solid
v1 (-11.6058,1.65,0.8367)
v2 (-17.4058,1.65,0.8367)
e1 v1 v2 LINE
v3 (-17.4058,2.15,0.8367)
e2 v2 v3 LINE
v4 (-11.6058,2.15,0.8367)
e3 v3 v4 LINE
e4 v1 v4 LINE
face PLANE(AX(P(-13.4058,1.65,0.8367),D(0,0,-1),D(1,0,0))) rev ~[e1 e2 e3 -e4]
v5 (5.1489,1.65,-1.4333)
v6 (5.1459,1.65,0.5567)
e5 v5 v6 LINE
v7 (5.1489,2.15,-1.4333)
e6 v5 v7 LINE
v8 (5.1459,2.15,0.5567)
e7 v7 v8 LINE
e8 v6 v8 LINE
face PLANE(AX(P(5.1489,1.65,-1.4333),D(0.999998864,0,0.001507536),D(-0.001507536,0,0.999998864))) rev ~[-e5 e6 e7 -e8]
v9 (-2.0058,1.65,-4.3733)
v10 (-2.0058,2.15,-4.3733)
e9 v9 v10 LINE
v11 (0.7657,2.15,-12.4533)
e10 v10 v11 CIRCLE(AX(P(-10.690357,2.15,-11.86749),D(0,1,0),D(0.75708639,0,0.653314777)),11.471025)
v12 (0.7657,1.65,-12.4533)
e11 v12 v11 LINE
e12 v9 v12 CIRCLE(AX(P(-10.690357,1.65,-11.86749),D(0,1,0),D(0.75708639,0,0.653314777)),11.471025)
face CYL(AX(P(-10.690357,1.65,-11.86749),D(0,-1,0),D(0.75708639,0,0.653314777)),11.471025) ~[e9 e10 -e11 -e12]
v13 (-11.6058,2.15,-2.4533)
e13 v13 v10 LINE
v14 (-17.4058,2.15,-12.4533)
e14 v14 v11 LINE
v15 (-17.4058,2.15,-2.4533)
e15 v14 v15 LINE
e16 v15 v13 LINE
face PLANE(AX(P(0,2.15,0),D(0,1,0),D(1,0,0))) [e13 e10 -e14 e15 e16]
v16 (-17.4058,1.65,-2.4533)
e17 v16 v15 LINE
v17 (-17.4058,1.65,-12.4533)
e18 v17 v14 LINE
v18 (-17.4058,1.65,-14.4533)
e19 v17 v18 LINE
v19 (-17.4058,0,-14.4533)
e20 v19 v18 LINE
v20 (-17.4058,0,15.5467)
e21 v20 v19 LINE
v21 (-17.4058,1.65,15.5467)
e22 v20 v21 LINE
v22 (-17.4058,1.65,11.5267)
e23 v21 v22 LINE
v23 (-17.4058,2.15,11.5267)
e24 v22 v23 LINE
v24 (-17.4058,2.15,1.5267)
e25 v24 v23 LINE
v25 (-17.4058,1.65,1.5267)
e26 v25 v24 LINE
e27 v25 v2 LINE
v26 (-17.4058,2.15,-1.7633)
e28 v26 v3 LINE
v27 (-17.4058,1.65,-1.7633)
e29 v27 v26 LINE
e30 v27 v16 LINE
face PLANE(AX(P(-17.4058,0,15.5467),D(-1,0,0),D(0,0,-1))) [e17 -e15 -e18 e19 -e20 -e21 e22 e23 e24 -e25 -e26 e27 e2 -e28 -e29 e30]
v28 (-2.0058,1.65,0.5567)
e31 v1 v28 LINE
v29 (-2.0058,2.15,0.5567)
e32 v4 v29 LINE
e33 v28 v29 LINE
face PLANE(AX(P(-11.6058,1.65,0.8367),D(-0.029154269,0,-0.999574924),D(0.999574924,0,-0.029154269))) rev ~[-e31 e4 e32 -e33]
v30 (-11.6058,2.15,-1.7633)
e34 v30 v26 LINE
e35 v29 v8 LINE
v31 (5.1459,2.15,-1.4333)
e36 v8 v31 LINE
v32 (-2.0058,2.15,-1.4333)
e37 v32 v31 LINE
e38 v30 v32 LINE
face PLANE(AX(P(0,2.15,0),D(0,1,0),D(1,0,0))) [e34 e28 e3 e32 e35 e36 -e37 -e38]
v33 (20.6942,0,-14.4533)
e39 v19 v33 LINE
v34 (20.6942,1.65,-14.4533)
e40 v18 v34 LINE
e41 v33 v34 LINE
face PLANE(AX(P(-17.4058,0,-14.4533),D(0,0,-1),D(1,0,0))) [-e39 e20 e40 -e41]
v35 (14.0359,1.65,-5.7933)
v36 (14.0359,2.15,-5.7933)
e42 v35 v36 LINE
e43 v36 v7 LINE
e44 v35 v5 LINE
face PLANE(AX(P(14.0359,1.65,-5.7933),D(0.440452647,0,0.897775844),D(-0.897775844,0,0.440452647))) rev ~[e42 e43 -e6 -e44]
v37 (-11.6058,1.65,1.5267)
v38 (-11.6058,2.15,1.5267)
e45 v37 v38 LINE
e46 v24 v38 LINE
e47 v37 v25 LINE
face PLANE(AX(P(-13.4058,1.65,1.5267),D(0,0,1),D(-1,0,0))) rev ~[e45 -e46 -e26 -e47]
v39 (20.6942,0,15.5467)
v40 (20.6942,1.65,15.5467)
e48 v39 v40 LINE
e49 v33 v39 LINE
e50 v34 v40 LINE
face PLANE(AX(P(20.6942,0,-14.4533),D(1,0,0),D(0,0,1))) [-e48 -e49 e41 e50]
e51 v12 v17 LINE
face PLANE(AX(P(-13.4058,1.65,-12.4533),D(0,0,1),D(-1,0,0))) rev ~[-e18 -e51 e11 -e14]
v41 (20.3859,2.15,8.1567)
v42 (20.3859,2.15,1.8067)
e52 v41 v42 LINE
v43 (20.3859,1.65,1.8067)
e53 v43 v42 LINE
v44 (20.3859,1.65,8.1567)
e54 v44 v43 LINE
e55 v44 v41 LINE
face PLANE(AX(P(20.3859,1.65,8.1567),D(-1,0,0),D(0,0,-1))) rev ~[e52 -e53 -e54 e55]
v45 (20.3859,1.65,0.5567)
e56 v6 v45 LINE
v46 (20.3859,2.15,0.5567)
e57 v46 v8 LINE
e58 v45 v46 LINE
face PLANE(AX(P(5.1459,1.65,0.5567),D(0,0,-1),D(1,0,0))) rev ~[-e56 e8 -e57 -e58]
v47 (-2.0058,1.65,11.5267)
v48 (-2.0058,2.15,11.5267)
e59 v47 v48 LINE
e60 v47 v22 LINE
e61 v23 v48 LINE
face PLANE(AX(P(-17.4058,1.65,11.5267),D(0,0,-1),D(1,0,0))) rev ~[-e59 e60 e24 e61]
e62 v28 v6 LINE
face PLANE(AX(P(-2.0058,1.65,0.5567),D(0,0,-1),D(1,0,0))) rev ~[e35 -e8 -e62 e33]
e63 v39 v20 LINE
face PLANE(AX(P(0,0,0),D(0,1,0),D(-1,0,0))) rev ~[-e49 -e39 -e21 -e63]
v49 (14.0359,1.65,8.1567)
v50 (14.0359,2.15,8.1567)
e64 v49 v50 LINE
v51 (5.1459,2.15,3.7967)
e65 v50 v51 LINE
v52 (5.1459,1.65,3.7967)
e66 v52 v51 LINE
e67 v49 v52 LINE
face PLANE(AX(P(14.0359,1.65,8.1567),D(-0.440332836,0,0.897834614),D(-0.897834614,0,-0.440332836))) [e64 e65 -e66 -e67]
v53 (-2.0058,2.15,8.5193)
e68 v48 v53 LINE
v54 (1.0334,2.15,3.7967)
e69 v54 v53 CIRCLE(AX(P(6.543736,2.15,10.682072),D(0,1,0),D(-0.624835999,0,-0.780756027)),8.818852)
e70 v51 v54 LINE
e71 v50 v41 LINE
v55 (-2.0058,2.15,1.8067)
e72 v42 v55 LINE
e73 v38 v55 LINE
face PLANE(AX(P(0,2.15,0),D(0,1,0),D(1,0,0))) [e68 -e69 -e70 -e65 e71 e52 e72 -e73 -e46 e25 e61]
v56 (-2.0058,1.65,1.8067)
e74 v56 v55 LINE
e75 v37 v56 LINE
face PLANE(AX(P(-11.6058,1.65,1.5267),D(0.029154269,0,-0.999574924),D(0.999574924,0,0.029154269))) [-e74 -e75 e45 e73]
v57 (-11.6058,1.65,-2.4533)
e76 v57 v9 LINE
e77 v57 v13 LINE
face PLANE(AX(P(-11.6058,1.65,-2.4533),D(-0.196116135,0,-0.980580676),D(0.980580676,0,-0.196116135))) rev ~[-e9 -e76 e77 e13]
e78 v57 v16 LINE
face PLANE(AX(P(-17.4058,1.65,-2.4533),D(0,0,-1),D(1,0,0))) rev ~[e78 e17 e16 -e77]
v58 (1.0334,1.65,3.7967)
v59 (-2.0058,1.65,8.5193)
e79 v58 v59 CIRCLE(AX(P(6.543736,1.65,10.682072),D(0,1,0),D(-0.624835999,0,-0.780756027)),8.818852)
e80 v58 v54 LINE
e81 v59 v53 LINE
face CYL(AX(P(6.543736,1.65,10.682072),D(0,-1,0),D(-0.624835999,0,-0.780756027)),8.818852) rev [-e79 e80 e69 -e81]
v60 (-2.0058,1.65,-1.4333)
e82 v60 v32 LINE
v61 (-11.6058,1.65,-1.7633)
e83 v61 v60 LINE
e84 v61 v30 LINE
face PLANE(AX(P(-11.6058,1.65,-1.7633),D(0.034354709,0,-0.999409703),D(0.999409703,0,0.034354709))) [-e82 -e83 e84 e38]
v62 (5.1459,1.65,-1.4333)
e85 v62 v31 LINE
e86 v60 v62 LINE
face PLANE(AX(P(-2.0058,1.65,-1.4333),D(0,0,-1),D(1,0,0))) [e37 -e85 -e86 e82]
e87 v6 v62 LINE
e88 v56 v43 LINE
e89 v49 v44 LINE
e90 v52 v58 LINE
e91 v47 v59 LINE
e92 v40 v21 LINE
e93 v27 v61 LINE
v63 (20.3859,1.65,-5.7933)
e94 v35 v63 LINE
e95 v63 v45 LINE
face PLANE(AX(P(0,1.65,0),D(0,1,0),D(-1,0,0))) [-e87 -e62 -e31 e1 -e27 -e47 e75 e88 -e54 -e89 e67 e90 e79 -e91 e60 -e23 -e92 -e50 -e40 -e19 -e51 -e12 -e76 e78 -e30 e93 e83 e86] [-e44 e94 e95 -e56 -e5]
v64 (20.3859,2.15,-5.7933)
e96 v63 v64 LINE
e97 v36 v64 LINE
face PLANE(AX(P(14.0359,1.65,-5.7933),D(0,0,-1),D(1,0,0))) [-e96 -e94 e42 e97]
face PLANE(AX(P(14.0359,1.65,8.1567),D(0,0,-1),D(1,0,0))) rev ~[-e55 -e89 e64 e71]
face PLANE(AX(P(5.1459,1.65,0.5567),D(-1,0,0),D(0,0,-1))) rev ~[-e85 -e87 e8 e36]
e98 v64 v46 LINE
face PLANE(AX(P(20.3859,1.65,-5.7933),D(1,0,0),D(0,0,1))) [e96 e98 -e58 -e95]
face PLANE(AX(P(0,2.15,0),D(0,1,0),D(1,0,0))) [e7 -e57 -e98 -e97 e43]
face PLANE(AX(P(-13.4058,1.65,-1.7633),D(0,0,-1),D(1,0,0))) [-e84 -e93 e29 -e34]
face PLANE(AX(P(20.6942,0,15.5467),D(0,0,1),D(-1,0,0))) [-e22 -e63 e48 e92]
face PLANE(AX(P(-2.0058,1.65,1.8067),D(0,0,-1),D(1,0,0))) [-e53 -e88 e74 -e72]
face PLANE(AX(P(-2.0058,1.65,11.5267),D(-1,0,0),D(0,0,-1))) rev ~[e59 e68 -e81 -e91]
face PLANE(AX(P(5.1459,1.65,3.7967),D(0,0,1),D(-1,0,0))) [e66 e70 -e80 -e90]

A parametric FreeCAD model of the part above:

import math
import FreeCAD as App
import Part
import Sketcher


def add_polygon(sketch, points):
    """Adds a closed chain of lines whose ends are joined by coincident constraints."""
    first, n = sketch.GeometryCount, len(points)
    for a, b in zip(points, points[1:] + points[:1]):
        sketch.addGeometry(Part.LineSegment(App.Vector(*a, 0), App.Vector(*b, 0)), False)
    for i in range(n):
        sketch.addConstraint(Sketcher.Constraint("Coincident", first + i, 2, first + (i + 1) % n, 1))

doc = App.newDocument("Part")
body = doc.addObject("PartDesign::Body", "Body")

# Sketch on XZ plane
sketch1 = body.newObject("Sketcher::SketchObject", "Sketch")
sketch1.AttachmentSupport = (doc.getObject("XZ_Plane"), [""])
sketch1.MapMode = "FlatFace"
add_polygon(sketch1, [(-17, 16), (21, 16), (21, -14), (-17, -14)])  # lines 0-3
sketch1.addConstraint(Sketcher.Constraint("Horizontal", 0))
sketch1.addConstraint(Sketcher.Constraint("Vertical", 1))
sketch1.addConstraint(Sketcher.Constraint("Horizontal", 2))
sketch1.addConstraint(Sketcher.Constraint("Vertical", 3))
sketch1.addConstraint(Sketcher.Constraint("DistanceY", 1, 2, 1, 1, 30.0))
sketch1.addConstraint(Sketcher.Constraint("DistanceX", 0, 1, 0, 2, 38.1))
sketch1.addConstraint(Sketcher.Constraint("DistanceX", -1, 1, 0, 2, 20.6942))
sketch1.addConstraint(Sketcher.Constraint("DistanceY", -1, 1, 0, 2, 15.5467))
pad1 = body.newObject("PartDesign::Pad", "Pad")
pad1.Profile = sketch1
pad1.Length = 1.65
pad1.Reversed = True

# Sketch on XZ plane
sketch2 = body.newObject("Sketcher::SketchObject", "Sketch001")
sketch2.AttachmentSupport = (doc.getObject("XZ_Plane"), [""])
sketch2.MapMode = "FlatFace"
sketch2.AttachmentOffset = App.Placement(App.Vector(0, 0, -1.65), App.Rotation())
sketch2.addGeometry(Part.LineSegment(App.Vector(-17.4, -12.5, 0), App.Vector(-17.4, -2.5, 0)), False)  # 0
sketch2.addGeometry(Part.LineSegment(App.Vector(-17.4, -2.5, 0), App.Vector(-11.6, -2.5, 0)), False)  # 1
sketch2.addGeometry(Part.LineSegment(App.Vector(-11.6, -2.5, 0), App.Vector(-2, -4.4, 0)), False)  # 2
sketch2.addGeometry(Part.ArcOfCircle(Part.Circle(App.Vector(-10.7, -11.9, 0), App.Vector(0, 0, 1), 11.5), math.radians(-3), math.radians(41)), False)  # 3
sketch2.addGeometry(Part.LineSegment(App.Vector(0.8, -12.5, 0), App.Vector(-17.4, -12.5, 0)), False)  # 4
add_polygon(sketch2, [(5.1, -1.4), (5.1, 0.6), (20.4, 0.6), (20.4, -5.8), (14, -5.8)])  # lines 5-9
sketch2.addGeometry(Part.LineSegment(App.Vector(-17.4, 1.5, 0), App.Vector(-17.4, 11.5, 0)), False)  # 10
sketch2.addGeometry(Part.LineSegment(App.Vector(-17.4, 11.5, 0), App.Vector(-2, 11.5, 0)), False)  # 11
sketch2.addGeometry(Part.LineSegment(App.Vector(-2, 11.5, 0), App.Vector(-2, 8.5, 0)), False)  # 12
sketch2.addGeometry(Part.ArcOfCircle(Part.Circle(App.Vector(6.5, 10.7, 0), App.Vector(0, 0, 1), 8.8), math.radians(-166), math.radians(-129)), False)  # 13
sketch2.addGeometry(Part.LineSegment(App.Vector(1, 3.8, 0), App.Vector(5.1, 3.8, 0)), False)  # 14
sketch2.addGeometry(Part.LineSegment(App.Vector(5.1, 3.8, 0), App.Vector(14, 8.2, 0)), False)  # 15
sketch2.addGeometry(Part.LineSegment(App.Vector(14, 8.2, 0), App.Vector(20.4, 8.2, 0)), False)  # 16
sketch2.addGeometry(Part.LineSegment(App.Vector(20.4, 8.2, 0), App.Vector(20.4, 1.8, 0)), False)  # 17
sketch2.addGeometry(Part.LineSegment(App.Vector(20.4, 1.8, 0), App.Vector(-2, 1.8, 0)), False)  # 18
sketch2.addGeometry(Part.LineSegment(App.Vector(-2, 1.8, 0), App.Vector(-11.6, 1.5, 0)), False)  # 19
sketch2.addGeometry(Part.LineSegment(App.Vector(-11.6, 1.5, 0), App.Vector(-17.4, 1.5, 0)), False)  # 20
add_polygon(sketch2, [(-17.4, -1.8), (-17.4, 0.8), (-11.6, 0.8), (-2, 0.6), (5.1, 0.6), (5.1, -1.4), (-2, -1.4), (-11.6, -1.8)])  # lines 21-28
sketch2.addConstraint(Sketcher.Constraint("Coincident", 0, 2, 1, 1))
sketch2.addConstraint(Sketcher.Constraint("Coincident", 1, 2, 2, 1))
sketch2.addConstraint(Sketcher.Constraint("Coincident", 2, 2, 3, 2))
sketch2.addConstraint(Sketcher.Constraint("Coincident", 3, 1, 4, 1))
sketch2.addConstraint(Sketcher.Constraint("Coincident", 4, 2, 0, 1))
sketch2.addConstraint(Sketcher.Constraint("Coincident", 10, 2, 11, 1))
sketch2.addConstraint(Sketcher.Constraint("Coincident", 11, 2, 12, 1))
sketch2.addConstraint(Sketcher.Constraint("Coincident", 12, 2, 13, 1))
sketch2.addConstraint(Sketcher.Constraint("Coincident", 13, 2, 14, 1))
sketch2.addConstraint(Sketcher.Constraint("Coincident", 14, 2, 15, 1))
sketch2.addConstraint(Sketcher.Constraint("Coincident", 15, 2, 16, 1))
sketch2.addConstraint(Sketcher.Constraint("Coincident", 16, 2, 17, 1))
sketch2.addConstraint(Sketcher.Constraint("Coincident", 17, 2, 18, 1))
sketch2.addConstraint(Sketcher.Constraint("Coincident", 18, 2, 19, 1))
sketch2.addConstraint(Sketcher.Constraint("Coincident", 19, 2, 20, 1))
sketch2.addConstraint(Sketcher.Constraint("Coincident", 20, 2, 10, 1))
sketch2.addConstraint(Sketcher.Constraint("Vertical", 0))
sketch2.addConstraint(Sketcher.Constraint("Horizontal", 1))
sketch2.addConstraint(Sketcher.Constraint("Horizontal", 4))
sketch2.addConstraint(Sketcher.Constraint("Horizontal", 6))
sketch2.addConstraint(Sketcher.Constraint("Vertical", 7))
sketch2.addConstraint(Sketcher.Constraint("Horizontal", 8))
sketch2.addConstraint(Sketcher.Constraint("Vertical", 10))
sketch2.addConstraint(Sketcher.Constraint("Horizontal", 11))
sketch2.addConstraint(Sketcher.Constraint("Vertical", 12))
sketch2.addConstraint(Sketcher.Constraint("Horizontal", 14))
sketch2.addConstraint(Sketcher.Constraint("Horizontal", 16))
sketch2.addConstraint(Sketcher.Constraint("Vertical", 17))
sketch2.addConstraint(Sketcher.Constraint("Horizontal", 18))
sketch2.addConstraint(Sketcher.Constraint("Horizontal", 20))
sketch2.addConstraint(Sketcher.Constraint("Vertical", 21))
sketch2.addConstraint(Sketcher.Constraint("Horizontal", 22))
sketch2.addConstraint(Sketcher.Constraint("Horizontal", 24))
sketch2.addConstraint(Sketcher.Constraint("Vertical", 25))
sketch2.addConstraint(Sketcher.Constraint("Horizontal", 26))
sketch2.addConstraint(Sketcher.Constraint("Horizontal", 28))
sketch2.addConstraint(Sketcher.Constraint("Coincident", 24, 2, 5, 2))
sketch2.addConstraint(Sketcher.Constraint("Horizontal", 9, 2, 25, 2))
sketch2.addConstraint(Sketcher.Constraint("Vertical", 4, 2, 10, 2))
sketch2.addConstraint(Sketcher.Constraint("Vertical", 2, 2, 11, 2))
sketch2.addConstraint(Sketcher.Constraint("Vertical", 5, 2, 14, 2))
sketch2.addConstraint(Sketcher.Constraint("Vertical", 8, 2, 15, 2))
sketch2.addConstraint(Sketcher.Constraint("Vertical", 7, 2, 16, 2))
sketch2.addConstraint(Sketcher.Constraint("Vertical", 12, 2, 18, 2))
sketch2.addConstraint(Sketcher.Constraint("Vertical", 1, 2, 19, 2))
sketch2.addConstraint(Sketcher.Constraint("Vertical", 20, 2, 21, 2))
sketch2.addConstraint(Sketcher.Constraint("Vertical", 19, 2, 22, 2))
sketch2.addConstraint(Sketcher.Constraint("Vertical", 18, 2, 23, 2))
sketch2.addConstraint(Sketcher.Constraint("Vertical", 23, 2, 26, 2))
sketch2.addConstraint(Sketcher.Constraint("Vertical", 22, 2, 27, 2))
sketch2.addConstraint(Sketcher.Constraint("Equal", 16, 7))
sketch2.addConstraint(Sketcher.Constraint("Equal", 0, 10))
sketch2.addConstraint(Sketcher.Constraint("Equal", 7, 17))
sketch2.addConstraint(Sketcher.Constraint("Equal", 19, 23))
sketch2.addConstraint(Sketcher.Constraint("DistanceY", 0, 1, 0, 2, 10.0))
sketch2.addConstraint(Sketcher.Constraint("DistanceY", 21, 1, 21, 2, 2.6))
sketch2.addConstraint(Sketcher.Constraint("DistanceX", 8, 2, 8, 1, 6.35))
sketch2.addConstraint(Sketcher.Constraint("DistanceY", 25, 2, 25, 1, 1.99))
sketch2.addConstraint(Sketcher.Constraint("DistanceX", 1, 2, 2, 2, 9.6))
sketch2.addConstraint(Sketcher.Constraint("DistanceX", 5, 2, 8, 2, 8.89))
sketch2.addConstraint(Sketcher.Constraint("DistanceY", 2, 2, 9, 2, 2.94))
sketch2.addConstraint(Sketcher.Constraint("DistanceY", 6, 2, 17, 2, 1.25))
sketch2.addConstraint(Sketcher.Constraint("DistanceY", 18, 2, 13, 2, 1.99))
sketch2.addConstraint(Sketcher.Constraint("DistanceY", 19, 2, 18, 2, 0.28))
sketch2.addConstraint(Sketcher.Constraint("DistanceY", 1, 2, 27, 2, 0.69))
sketch2.addConstraint(Sketcher.Constraint("DistanceX", 1, 1, 1, 2, 5.8))
sketch2.addConstraint(Sketcher.Constraint("Radius", 3, 11.4708))
sketch2.addConstraint(Sketcher.Constraint("Radius", 13, 8.8193))
sketch2.addConstraint(Sketcher.Constraint("DistanceX", 0, 2, 13, 3, 23.95))
sketch2.addConstraint(Sketcher.Constraint("Distance", 9, 9.899))
sketch2.addConstraint(Sketcher.Constraint("DistanceX", 4, 2, 4, 1, 18.1715))
sketch2.addConstraint(Sketcher.Constraint("DistanceX", 14, 1, 14, 2, 4.1125))
sketch2.addConstraint(Sketcher.Constraint("DistanceX", 18, 2, 18, 1, 22.3917))
sketch2.addConstraint(Sketcher.Constraint("DistanceX", -1, 1, 13, 3, 6.544))
sketch2.addConstraint(Sketcher.Constraint("DistanceY", 3, 3, -1, 1, 11.8674))
pad2 = body.newObject("PartDesign::Pad", "Pad001")
pad2.Profile = sketch2
pad2.Length = 0.5
pad2.Reversed = True

doc.recompute()
